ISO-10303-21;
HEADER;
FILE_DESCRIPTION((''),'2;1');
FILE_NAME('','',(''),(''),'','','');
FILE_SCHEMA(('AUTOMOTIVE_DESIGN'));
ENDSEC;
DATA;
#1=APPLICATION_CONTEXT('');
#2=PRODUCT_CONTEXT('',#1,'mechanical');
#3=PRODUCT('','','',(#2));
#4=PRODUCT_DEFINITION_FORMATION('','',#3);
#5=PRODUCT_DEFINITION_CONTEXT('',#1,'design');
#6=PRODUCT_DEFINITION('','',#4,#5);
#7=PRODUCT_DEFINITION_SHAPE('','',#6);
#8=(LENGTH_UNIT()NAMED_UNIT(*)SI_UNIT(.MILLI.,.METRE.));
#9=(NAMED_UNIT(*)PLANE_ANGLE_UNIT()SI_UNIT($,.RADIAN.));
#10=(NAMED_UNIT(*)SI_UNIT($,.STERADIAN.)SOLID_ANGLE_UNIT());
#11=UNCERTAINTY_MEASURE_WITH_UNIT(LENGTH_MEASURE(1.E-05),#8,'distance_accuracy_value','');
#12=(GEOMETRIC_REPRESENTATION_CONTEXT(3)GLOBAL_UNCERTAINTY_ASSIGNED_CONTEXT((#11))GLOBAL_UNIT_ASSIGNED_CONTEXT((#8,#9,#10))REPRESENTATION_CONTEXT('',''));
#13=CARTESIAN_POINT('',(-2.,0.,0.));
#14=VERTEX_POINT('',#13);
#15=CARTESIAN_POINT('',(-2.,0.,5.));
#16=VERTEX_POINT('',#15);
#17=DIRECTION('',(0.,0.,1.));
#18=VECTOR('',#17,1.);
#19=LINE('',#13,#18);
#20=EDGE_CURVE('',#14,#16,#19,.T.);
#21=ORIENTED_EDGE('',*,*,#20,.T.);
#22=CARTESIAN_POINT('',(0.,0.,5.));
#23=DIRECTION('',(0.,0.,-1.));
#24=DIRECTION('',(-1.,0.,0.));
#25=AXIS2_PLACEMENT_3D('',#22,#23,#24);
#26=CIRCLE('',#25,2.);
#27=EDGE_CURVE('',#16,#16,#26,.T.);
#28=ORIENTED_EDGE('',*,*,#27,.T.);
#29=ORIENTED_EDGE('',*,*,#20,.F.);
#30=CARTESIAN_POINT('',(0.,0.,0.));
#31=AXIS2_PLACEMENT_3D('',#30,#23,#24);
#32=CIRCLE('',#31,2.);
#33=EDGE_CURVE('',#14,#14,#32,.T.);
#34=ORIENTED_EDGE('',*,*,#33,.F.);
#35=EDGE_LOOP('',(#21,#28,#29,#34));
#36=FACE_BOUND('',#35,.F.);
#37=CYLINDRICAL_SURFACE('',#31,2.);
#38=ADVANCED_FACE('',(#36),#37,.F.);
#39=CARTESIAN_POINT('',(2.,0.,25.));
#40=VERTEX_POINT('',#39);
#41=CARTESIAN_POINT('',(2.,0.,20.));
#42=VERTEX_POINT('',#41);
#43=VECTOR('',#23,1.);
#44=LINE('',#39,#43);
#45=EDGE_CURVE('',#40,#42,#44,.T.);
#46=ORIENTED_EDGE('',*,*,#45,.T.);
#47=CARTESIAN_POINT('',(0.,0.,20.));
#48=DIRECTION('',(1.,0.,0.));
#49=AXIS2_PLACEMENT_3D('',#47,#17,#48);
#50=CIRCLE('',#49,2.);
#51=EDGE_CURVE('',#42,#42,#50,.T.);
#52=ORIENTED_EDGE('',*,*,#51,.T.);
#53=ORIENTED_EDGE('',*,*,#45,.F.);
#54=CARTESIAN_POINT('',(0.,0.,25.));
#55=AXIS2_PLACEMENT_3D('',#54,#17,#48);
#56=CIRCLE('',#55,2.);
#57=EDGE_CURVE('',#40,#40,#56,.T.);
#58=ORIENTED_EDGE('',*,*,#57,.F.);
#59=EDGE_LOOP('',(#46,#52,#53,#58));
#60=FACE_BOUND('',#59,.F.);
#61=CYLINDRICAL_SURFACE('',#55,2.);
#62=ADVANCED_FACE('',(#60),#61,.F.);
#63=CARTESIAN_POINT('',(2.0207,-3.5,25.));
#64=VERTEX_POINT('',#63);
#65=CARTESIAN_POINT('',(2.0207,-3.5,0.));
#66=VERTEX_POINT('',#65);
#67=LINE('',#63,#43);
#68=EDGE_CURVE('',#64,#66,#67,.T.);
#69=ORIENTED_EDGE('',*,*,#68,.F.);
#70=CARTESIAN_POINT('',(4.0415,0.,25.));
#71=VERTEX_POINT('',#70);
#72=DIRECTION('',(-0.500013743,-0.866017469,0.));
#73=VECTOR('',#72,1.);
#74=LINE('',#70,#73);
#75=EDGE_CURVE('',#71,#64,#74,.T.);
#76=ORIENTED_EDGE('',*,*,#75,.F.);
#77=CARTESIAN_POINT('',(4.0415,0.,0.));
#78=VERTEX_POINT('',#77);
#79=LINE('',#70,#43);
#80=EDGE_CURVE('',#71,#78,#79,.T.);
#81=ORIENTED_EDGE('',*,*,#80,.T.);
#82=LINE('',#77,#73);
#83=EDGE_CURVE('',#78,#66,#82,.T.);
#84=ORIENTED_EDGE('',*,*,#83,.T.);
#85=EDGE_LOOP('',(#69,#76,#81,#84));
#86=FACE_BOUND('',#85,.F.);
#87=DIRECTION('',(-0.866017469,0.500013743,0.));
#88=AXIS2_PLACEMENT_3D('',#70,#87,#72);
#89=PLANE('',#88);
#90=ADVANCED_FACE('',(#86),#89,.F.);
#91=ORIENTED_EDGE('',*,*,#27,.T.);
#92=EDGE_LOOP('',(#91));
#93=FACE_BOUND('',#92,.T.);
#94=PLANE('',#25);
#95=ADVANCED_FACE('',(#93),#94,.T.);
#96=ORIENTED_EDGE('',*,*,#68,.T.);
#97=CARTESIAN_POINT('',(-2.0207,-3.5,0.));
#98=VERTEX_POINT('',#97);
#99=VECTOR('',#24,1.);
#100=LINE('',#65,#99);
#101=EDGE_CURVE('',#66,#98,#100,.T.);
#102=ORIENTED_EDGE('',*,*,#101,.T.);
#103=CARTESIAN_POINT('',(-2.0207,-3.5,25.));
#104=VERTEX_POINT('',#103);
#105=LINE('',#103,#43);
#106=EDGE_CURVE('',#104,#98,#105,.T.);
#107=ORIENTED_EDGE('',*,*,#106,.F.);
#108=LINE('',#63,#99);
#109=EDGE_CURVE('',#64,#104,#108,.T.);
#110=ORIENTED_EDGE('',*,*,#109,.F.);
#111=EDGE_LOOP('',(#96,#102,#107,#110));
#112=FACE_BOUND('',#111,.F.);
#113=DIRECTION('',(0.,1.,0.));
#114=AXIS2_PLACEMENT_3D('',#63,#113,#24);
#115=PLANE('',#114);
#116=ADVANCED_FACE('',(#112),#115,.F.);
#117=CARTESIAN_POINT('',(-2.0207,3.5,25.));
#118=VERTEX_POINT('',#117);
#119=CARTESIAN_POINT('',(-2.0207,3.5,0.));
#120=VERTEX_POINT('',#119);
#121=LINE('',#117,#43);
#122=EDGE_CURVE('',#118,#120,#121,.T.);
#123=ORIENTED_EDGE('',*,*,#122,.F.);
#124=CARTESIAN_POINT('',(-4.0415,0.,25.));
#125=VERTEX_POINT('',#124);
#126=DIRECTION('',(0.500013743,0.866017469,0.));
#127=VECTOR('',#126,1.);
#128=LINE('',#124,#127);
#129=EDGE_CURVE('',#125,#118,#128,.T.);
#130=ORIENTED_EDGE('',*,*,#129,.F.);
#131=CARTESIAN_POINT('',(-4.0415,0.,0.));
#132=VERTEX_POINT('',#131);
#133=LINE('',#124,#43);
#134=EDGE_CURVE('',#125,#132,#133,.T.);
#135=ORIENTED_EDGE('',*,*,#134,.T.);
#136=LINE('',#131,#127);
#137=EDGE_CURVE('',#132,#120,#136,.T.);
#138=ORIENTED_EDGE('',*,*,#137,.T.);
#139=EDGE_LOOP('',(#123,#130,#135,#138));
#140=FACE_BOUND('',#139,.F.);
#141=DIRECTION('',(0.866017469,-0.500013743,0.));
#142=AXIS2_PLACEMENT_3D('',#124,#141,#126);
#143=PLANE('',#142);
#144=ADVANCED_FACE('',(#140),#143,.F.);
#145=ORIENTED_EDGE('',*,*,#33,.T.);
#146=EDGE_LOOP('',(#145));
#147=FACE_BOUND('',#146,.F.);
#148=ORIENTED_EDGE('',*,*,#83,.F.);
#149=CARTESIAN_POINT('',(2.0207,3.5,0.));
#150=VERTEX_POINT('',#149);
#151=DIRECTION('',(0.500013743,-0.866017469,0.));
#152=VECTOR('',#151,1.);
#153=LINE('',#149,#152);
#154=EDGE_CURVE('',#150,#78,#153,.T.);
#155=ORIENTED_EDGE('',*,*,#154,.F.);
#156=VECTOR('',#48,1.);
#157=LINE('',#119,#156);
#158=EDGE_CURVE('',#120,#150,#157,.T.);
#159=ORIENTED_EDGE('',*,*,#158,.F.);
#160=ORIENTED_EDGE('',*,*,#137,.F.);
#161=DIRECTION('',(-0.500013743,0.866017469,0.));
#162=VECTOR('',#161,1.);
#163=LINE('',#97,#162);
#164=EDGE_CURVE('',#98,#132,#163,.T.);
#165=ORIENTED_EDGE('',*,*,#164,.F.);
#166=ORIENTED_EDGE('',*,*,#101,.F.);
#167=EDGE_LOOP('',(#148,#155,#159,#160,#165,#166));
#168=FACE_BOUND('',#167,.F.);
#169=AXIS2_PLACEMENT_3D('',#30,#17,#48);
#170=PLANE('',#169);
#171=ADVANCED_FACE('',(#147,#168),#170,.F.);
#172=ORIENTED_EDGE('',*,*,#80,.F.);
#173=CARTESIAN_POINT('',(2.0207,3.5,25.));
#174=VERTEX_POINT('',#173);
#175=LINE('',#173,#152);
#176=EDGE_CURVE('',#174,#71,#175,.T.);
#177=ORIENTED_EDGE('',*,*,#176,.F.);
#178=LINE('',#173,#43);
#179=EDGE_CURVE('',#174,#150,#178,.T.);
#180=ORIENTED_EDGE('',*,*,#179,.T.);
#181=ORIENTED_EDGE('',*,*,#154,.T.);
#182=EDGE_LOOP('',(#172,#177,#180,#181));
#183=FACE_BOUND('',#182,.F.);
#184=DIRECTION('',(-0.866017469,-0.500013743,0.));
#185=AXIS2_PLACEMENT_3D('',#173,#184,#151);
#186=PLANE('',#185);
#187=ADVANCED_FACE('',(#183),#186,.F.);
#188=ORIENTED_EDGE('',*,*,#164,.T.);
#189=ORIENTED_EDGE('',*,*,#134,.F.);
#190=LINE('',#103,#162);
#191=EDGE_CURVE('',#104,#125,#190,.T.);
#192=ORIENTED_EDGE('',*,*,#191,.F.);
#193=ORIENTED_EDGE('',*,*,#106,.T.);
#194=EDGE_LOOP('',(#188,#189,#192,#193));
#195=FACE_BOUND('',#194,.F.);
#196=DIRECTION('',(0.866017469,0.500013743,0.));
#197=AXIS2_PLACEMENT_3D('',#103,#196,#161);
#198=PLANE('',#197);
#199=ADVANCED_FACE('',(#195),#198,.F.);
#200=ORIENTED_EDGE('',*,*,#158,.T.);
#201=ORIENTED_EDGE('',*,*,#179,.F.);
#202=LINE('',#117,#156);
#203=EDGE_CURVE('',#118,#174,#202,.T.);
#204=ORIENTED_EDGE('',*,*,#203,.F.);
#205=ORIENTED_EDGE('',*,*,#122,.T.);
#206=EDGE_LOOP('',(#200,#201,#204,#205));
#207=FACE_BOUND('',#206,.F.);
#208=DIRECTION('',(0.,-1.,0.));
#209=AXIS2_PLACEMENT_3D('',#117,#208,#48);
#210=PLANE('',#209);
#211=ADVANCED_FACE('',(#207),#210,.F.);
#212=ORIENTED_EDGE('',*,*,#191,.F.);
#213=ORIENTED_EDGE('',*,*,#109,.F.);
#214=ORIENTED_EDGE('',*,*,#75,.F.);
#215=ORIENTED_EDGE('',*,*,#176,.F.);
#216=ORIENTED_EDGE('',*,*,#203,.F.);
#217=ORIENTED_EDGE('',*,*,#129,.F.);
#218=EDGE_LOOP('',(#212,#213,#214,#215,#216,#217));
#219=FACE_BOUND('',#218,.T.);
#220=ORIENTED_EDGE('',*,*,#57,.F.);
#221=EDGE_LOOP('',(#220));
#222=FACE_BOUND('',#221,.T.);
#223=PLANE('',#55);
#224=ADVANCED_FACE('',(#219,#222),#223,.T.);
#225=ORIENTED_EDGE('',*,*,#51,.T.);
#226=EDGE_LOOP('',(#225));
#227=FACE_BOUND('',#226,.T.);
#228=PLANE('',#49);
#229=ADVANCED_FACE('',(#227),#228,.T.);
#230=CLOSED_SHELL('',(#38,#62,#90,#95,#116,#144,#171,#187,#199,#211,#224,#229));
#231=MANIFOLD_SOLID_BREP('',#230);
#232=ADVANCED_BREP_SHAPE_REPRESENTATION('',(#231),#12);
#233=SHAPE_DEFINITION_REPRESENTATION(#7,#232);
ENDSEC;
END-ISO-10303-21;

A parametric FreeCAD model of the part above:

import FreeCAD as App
import Part
import Sketcher
from FreeCAD import Vector
Q = App.Units.Quantity

doc = App.newDocument("Part")
body = doc.addObject("PartDesign::Body", "Body")

# Sketch on XY plane
sketch1 = body.newObject("Sketcher::SketchObject", "Sketch")
sketch1.AttachmentSupport = (doc.getObject("XY_Plane"), [""])
sketch1.MapMode = "FlatFace"
sketch1.addGeometry(Part.Circle(Vector(0, 0, 0), Vector(0, 0, 1), 4.5), False)
sketch1.addConstraint([
    Sketcher.Constraint("Coincident", 0, 3, -1, 1),
    Sketcher.Constraint("Diameter", 0, 9.0),
])
pad1 = body.newObject("PartDesign::Pad", "Pad")
pad1.Profile = sketch1
pad1.Length = 25

# Sketch on XY plane
sketch2 = body.newObject("Sketcher::SketchObject", "Sketch001")
sketch2.AttachmentSupport = (doc.getObject("XY_Plane"), [""])
sketch2.MapMode = "FlatFace"
sketch2.AttachmentOffset = App.Placement(Vector(0, 0, 25), App.Rotation())
sketch2.addGeometry(Part.Circle(Vector(0, 0, 0), Vector(0, 0, 1), 2), False)
sketch2.addConstraint([
    Sketcher.Constraint("Coincident", 0, 3, -1, 1),
    Sketcher.Constraint("Diameter", 0, 4.0),
])
pocket1 = body.newObject("PartDesign::Pocket", "Pocket")
pocket1.Profile = sketch2
pocket1.Length = 5

# Sketch on XY plane
sketch3 = body.newObject("Sketcher::SketchObject", "Sketch002")
sketch3.AttachmentSupport = (doc.getObject("XY_Plane"), [""])
sketch3.MapMode = "FlatFace"
sketch3.addGeometry(Part.Circle(Vector(0, 0, 0), Vector(0, 0, 1), 2), False)
sketch3.addConstraint([
    Sketcher.Constraint("Coincident", 0, 3, -1, 1),
    Sketcher.Constraint("Diameter", 0, 4.0),
])
pocket2 = body.newObject("PartDesign::Pocket", "Pocket001")
pocket2.Profile = sketch3
pocket2.Length = 5
pocket2.Reversed = True

# Sketch on XY plane
sketch4 = body.newObject("Sketcher::SketchObject", "Sketch003")
sketch4.AttachmentSupport = (doc.getObject("XY_Plane"), [""])
sketch4.MapMode = "FlatFace"
sketch4.AttachmentOffset = App.Placement(Vector(0, 0, 25), App.Rotation())
sketch4.addGeometry([
    Part.Circle(Vector(0, 0, 0), Vector(0, 0, 1), 4.5),  # 0
    Part.LineSegment(Vector(-2, 3.5, 0), Vector(2, 3.5, 0)),  # 1
    Part.LineSegment(Vector(2, 3.5, 0), Vector(4, 0, 0)),  # 2
    Part.LineSegment(Vector(4, 0, 0), Vector(2, -3.5, 0)),  # 3
    Part.LineSegment(Vector(2, -3.5, 0), Vector(-2, -3.5, 0)),  # 4
    Part.LineSegment(Vector(-2, -3.5, 0), Vector(-4, 0, 0)),  # 5
    Part.LineSegment(Vector(-4, 0, 0), Vector(-2, 3.5, 0)),  # 6
], False)
sketch4.addConstraint([
    Sketcher.Constraint("Coincident", 1, 2, 2, 1),
    Sketcher.Constraint("Coincident", 2, 2, 3, 1),
    Sketcher.Constraint("Coincident", 3, 2, 4, 1),
    Sketcher.Constraint("Coincident", 4, 2, 5, 1),
    Sketcher.Constraint("Coincident", 5, 2, 6, 1),
    Sketcher.Constraint("Coincident", 6, 2, 1, 1),
    Sketcher.Constraint("Horizontal", 1),
    Sketcher.Constraint("Horizontal", 4),
    Sketcher.Constraint("Coincident", 0, 3, -1, 1),
    Sketcher.Constraint("Symmetric", 1, 2, 4, 2, -1, 1),
    Sketcher.Constraint("Symmetric", 2, 2, 5, 2, -1, 1),
    Sketcher.Constraint("PointOnObject", 2, 2, -1),
    Sketcher.Constraint("Parallel", 3, 6),
    Sketcher.Constraint("Vertical", 1, 2, 3, 2),
    Sketcher.Constraint("Diameter", 0, 9.0),
    Sketcher.Constraint("DistanceY", 3, 2, 1, 2, 7.0),
    Sketcher.Constraint("Angle", 2, Q("-59.999 deg")),
    Sketcher.Constraint("DistanceX", 1, 1, 1, 2, 4.0414),
])
pocket3 = body.newObject("PartDesign::Pocket", "Pocket002")
pocket3.Profile = sketch4
pocket3.Length = 25

doc.recompute()
